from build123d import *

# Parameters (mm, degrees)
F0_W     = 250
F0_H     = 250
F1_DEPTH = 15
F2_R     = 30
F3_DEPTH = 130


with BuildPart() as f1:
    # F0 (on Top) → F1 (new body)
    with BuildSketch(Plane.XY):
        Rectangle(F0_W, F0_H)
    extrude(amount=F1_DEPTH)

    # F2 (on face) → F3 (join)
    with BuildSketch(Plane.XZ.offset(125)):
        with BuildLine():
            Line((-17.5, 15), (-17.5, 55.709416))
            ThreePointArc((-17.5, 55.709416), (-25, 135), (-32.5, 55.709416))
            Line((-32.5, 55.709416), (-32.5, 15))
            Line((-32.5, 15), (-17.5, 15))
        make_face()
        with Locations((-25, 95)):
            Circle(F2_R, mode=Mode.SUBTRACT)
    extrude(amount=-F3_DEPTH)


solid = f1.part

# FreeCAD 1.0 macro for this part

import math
import FreeCAD as App
import Part
import Sketcher
from FreeCAD import Vector
Q = App.Units.Quantity


def add_polygon(sketch, points):
    """Adds a closed chain of lines whose ends are joined by coincident constraints."""
    first, n = sketch.GeometryCount, len(points)
    for a, b in zip(points, points[1:] + points[:1]):
        sketch.addGeometry(Part.LineSegment(App.Vector(*a, 0), App.Vector(*b, 0)), False)
    for i in range(n):
        sketch.addConstraint(Sketcher.Constraint("Coincident", first + i, 2, first + (i + 1) % n, 1))

doc = App.newDocument("Part")
body = doc.addObject("PartDesign::Body", "Body")

# Sketch on XY plane
sketch1 = body.newObject("Sketcher::SketchObject", "Sketch")
sketch1.AttachmentSupport = (doc.getObject("XY_Plane"), [""])
sketch1.MapMode = "FlatFace"
add_polygon(sketch1, [(-125, 125), (-125, -125), (125, -125), (125, 125)])  # lines 0-3
sketch1.addConstraint(Sketcher.Constraint("Vertical", 0))
sketch1.addConstraint(Sketcher.Constraint("Horizontal", 1))
sketch1.addConstraint(Sketcher.Constraint("Vertical", 2))
sketch1.addConstraint(Sketcher.Constraint("Horizontal", 3))
sketch1.addConstraint(Sketcher.Constraint("Symmetric", 0, 2, 2, 2, -1, 1))
sketch1.addConstraint(Sketcher.Constraint("Equal", 3, 0))
sketch1.addConstraint(Sketcher.Constraint("DistanceX", 1, 1, 1, 2, Q("250 mm")))
pad1 = body.newObject("PartDesign::Pad", "Pad")
pad1.Profile = sketch1
pad1.Length = 15

# Sketch on XZ plane
sketch2 = body.newObject("Sketcher::SketchObject", "Sketch001")
sketch2.AttachmentSupport = (doc.getObject("XZ_Plane"), [""])
sketch2.MapMode = "FlatFace"
sketch2.AttachmentOffset = App.Placement(Vector(0, 0, 125), App.Rotation())
sketch2.addGeometry(Part.LineSegment(Vector(-17.5, 15, 0), Vector(-17.5, 55.709416, 0)), False)
sketch2.addGeometry(Part.ArcOfCircle(Part.Circle(Vector(-25, 95, 0), Vector(0, 0, 1), 40), math.radians(-79.193077), math.radians(259.193077)), False)
sketch2.addGeometry(Part.LineSegment(Vector(-32.5, 55.709416, 0), Vector(-32.5, 15, 0)), False)
sketch2.addGeometry(Part.LineSegment(Vector(-32.5, 15, 0), Vector(-17.5, 15, 0)), False)
sketch2.addGeometry(Part.Circle(Vector(-25, 95, 0), Vector(0, 0, 1), 30), False)
sketch2.addConstraint(Sketcher.Constraint("Coincident", 0, 2, 1, 1))
sketch2.addConstraint(Sketcher.Constraint("Coincident", 1, 2, 2, 1))
sketch2.addConstraint(Sketcher.Constraint("Coincident", 2, 2, 3, 1))
sketch2.addConstraint(Sketcher.Constraint("Coincident", 3, 2, 0, 1))
sketch2.addConstraint(Sketcher.Constraint("Vertical", 0))
sketch2.addConstraint(Sketcher.Constraint("Vertical", 2))
sketch2.addConstraint(Sketcher.Constraint("Horizontal", 3))
sketch2.addConstraint(Sketcher.Constraint("Coincident", 4, 3, 1, 3))
sketch2.addConstraint(Sketcher.Constraint("Horizontal", 0, 2, 1, 2))
sketch2.addConstraint(Sketcher.Constraint("Diameter", 4, Q("60 mm")))
sketch2.addConstraint(Sketcher.Constraint("Radius", 1, Q("40 mm")))
sketch2.addConstraint(Sketcher.Constraint("DistanceX", 3, 1, 3, 2, Q("15 mm")))
sketch2.addConstraint(Sketcher.Constraint("DistanceX", 1, 3, -1, 1, Q("25 mm")))
sketch2.addConstraint(Sketcher.Constraint("DistanceY", -1, 1, 1, 3, Q("95 mm")))
sketch2.addConstraint(Sketcher.Constraint("DistanceY", -1, 1, 2, 2, Q("15 mm")))
pad2 = body.newObject("PartDesign::Pad", "Pad001")
pad2.Profile = sketch2
pad2.Length = 130
pad2.Reversed = True

doc.recompute()
